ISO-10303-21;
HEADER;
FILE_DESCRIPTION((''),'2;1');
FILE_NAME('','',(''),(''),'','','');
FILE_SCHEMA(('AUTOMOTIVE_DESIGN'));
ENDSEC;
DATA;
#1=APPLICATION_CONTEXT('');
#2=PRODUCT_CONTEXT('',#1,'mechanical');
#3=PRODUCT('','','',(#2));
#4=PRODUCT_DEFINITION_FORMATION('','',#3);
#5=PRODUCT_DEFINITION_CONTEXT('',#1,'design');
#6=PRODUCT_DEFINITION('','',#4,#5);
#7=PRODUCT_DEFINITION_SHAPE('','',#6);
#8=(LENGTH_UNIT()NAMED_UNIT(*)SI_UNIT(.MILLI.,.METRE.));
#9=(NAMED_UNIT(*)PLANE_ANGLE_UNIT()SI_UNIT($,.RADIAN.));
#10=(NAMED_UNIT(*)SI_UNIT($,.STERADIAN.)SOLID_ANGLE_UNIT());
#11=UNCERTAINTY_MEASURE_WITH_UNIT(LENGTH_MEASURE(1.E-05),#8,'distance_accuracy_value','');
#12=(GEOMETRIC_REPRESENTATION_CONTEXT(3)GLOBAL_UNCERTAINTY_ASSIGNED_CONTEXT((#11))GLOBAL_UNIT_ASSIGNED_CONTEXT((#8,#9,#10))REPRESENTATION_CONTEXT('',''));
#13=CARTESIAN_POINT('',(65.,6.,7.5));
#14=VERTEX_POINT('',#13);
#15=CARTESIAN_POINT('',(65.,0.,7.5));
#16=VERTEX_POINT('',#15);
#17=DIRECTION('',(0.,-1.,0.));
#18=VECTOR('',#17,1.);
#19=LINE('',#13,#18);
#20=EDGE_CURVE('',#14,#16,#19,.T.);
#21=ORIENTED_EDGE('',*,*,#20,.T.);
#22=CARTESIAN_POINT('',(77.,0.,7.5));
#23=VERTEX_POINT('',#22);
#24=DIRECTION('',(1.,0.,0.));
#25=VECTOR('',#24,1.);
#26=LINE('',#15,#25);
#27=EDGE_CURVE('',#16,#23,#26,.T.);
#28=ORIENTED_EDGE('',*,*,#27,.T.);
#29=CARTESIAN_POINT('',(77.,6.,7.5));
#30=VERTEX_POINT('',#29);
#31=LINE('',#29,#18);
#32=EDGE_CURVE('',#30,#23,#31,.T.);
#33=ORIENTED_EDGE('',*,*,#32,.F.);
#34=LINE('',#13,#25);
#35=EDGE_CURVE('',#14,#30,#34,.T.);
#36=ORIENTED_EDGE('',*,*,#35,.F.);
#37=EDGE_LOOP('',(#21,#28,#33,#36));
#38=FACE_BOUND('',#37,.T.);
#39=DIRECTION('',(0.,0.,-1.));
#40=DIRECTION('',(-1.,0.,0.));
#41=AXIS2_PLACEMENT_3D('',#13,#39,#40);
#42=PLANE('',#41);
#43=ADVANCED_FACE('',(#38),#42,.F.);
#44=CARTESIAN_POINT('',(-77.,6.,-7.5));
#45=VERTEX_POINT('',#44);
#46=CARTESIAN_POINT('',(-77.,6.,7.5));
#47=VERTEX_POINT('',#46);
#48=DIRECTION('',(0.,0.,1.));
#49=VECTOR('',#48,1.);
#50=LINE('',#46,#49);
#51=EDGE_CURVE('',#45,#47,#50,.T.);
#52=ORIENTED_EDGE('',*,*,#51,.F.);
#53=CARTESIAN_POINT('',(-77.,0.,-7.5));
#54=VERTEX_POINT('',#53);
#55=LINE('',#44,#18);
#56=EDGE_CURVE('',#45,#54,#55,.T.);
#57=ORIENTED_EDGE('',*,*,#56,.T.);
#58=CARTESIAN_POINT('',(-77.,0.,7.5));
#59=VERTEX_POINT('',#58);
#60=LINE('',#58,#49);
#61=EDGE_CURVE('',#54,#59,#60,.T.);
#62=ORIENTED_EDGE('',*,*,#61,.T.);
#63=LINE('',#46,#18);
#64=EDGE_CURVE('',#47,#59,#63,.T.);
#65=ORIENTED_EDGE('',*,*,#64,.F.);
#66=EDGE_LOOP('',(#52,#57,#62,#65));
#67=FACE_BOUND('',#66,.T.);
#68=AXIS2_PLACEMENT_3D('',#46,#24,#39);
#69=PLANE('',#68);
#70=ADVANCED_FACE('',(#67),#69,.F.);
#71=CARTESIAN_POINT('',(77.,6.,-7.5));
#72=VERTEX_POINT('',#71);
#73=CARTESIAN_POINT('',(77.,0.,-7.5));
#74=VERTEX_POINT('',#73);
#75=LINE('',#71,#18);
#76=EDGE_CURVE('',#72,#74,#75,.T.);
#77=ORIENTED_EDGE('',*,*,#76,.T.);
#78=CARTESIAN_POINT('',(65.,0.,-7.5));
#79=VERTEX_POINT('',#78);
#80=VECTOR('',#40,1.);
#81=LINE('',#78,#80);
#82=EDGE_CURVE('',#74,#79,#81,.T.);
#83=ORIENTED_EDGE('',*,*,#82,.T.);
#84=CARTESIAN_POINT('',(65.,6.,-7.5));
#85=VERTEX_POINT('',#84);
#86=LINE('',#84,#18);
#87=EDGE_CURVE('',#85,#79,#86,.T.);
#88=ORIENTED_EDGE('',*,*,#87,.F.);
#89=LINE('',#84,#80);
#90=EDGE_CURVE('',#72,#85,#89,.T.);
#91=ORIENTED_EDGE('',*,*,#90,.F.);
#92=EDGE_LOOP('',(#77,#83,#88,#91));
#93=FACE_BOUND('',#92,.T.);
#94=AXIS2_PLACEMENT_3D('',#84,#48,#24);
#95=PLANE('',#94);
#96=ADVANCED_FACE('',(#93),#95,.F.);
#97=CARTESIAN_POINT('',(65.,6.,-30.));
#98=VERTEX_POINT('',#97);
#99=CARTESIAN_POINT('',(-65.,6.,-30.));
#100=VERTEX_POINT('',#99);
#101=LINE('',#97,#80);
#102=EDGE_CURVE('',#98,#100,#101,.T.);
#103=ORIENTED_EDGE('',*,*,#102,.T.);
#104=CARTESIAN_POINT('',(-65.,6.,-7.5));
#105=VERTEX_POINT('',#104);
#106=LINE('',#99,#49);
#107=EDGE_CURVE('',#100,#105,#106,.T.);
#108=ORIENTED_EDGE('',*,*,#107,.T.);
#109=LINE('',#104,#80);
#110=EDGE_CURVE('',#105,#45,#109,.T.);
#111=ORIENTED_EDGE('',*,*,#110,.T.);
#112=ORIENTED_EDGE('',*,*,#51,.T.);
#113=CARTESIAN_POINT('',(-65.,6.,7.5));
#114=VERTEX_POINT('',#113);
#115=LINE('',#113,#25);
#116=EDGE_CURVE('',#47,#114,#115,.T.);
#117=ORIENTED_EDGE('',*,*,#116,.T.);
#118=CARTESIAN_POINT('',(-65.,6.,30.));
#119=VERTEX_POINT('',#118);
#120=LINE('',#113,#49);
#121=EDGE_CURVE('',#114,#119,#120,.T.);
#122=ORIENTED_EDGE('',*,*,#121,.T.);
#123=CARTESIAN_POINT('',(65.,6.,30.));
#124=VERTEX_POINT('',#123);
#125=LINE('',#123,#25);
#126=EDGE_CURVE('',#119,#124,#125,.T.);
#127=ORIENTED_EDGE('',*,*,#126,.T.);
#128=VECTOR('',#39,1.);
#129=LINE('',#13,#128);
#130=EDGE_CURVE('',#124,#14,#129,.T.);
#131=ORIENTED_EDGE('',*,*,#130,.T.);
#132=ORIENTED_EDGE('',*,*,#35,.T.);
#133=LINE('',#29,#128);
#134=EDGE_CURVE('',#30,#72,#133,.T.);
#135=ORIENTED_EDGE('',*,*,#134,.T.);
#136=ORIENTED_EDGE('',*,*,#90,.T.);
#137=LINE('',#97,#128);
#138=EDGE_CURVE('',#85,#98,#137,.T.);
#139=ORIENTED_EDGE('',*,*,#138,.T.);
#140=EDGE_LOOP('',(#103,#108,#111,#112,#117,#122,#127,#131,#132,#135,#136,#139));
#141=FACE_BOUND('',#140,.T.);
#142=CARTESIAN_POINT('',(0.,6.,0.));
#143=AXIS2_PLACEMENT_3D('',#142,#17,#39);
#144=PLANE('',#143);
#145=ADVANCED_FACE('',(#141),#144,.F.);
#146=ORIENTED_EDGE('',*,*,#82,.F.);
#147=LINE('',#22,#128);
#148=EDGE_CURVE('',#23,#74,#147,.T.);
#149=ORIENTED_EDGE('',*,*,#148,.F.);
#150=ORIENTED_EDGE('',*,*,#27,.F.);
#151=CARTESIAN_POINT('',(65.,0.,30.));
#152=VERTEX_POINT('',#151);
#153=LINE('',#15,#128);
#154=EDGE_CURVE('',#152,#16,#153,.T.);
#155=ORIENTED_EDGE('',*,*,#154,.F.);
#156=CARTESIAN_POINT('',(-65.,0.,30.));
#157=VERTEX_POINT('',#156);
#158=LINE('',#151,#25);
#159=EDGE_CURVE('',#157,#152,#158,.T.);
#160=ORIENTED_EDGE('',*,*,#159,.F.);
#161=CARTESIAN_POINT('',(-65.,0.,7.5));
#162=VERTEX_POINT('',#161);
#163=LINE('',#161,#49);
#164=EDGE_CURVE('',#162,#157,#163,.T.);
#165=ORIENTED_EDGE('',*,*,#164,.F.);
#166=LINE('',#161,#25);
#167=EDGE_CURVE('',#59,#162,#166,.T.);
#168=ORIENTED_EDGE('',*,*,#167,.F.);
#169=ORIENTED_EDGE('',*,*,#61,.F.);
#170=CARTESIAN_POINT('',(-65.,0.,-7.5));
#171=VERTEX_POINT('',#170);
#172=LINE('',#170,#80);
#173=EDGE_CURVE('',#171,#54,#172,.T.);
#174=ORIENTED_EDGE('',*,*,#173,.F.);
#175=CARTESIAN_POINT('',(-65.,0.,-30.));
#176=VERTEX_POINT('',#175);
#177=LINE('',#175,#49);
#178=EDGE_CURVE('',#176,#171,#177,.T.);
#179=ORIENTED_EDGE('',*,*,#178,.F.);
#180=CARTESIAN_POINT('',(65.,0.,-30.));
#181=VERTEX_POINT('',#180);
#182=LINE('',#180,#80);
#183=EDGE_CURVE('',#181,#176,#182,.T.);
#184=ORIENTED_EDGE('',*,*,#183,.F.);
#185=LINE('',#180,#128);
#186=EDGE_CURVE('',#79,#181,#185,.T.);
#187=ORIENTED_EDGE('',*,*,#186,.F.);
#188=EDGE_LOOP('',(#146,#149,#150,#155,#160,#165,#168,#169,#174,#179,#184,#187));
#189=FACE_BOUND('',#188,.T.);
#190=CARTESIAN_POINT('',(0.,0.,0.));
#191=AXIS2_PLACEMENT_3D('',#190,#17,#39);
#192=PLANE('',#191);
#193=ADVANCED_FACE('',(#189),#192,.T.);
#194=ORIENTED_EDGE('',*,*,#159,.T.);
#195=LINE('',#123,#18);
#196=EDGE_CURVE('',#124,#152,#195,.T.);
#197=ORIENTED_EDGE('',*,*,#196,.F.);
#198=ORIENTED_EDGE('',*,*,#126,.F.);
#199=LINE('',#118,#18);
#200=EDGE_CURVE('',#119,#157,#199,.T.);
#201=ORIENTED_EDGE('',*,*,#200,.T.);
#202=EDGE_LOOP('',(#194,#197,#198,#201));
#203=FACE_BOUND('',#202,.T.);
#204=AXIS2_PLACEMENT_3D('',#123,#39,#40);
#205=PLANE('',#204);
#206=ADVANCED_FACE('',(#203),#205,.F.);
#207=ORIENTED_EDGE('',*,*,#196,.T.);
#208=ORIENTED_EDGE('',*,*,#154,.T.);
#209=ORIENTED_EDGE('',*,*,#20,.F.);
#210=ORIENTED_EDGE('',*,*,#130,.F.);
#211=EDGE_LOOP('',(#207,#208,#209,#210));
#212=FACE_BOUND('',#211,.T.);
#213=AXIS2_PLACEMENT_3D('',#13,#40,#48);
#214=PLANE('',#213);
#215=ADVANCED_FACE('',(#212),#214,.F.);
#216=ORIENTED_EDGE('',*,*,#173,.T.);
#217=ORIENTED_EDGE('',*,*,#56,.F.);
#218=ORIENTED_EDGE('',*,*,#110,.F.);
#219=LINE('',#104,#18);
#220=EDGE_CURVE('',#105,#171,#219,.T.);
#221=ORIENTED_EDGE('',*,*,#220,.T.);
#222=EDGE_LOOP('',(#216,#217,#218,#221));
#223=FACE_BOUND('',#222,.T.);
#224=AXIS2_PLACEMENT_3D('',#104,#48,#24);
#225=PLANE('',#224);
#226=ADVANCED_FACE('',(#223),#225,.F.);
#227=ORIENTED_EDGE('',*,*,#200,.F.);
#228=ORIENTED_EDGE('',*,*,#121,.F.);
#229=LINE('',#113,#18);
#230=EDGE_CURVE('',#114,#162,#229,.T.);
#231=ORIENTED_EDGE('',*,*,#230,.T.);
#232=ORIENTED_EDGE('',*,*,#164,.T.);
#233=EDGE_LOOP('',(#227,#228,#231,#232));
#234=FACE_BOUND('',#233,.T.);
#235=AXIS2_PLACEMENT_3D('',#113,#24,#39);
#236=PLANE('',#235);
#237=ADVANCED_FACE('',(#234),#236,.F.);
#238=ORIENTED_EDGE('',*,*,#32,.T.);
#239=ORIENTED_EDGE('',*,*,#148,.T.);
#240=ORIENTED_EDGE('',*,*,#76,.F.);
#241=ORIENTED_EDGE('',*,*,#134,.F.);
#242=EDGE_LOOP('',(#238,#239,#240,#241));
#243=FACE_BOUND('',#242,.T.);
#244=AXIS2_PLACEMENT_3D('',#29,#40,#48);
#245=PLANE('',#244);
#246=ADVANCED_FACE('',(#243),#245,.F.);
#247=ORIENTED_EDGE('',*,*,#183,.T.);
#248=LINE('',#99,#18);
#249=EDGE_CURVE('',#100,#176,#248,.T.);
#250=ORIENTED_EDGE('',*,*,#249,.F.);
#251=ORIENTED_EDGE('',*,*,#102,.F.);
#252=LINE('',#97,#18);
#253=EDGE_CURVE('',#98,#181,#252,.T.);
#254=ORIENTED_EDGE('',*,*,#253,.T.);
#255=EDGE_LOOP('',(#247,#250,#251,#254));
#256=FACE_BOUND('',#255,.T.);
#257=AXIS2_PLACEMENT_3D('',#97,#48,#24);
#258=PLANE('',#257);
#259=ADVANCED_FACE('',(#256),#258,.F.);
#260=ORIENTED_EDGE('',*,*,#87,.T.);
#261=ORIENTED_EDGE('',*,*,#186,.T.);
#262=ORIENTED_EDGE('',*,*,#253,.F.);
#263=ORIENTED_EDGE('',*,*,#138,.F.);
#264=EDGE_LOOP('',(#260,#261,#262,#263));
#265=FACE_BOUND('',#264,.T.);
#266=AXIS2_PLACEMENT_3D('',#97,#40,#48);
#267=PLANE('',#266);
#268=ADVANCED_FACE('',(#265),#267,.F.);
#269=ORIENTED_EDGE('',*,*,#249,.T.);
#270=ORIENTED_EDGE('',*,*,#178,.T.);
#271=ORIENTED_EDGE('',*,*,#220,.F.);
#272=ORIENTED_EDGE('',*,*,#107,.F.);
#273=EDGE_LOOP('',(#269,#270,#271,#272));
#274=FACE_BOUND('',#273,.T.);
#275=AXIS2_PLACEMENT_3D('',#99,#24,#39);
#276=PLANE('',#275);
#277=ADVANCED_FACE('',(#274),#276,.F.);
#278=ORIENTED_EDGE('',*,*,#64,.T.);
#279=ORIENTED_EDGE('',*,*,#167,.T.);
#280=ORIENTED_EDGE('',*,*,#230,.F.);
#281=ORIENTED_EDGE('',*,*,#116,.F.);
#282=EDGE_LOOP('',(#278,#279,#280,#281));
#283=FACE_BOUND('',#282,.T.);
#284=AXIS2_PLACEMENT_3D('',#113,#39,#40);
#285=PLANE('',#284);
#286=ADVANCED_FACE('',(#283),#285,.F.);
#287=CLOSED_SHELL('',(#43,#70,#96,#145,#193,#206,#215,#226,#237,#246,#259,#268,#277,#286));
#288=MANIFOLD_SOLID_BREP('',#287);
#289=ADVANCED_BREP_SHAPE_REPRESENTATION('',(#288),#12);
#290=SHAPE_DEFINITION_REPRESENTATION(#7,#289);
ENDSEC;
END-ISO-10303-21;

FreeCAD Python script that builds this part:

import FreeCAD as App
import Part
import Sketcher
Q = App.Units.Quantity

doc = App.newDocument("Part")
body = doc.addObject("PartDesign::Body", "Body")

# Sketch on XZ plane
sketch1 = doc.addObject("Sketcher::SketchObject", "Sketch")
body.addObject(sketch1)
sketch1.AttachmentSupport = (doc.XZ_Plane, [""])
sketch1.MapMode = "FlatFace"
sketch1.addGeometry(Part.LineSegment(App.Vector(65, -30, 0), App.Vector(-65, -30, 0)), False)
sketch1.addGeometry(Part.LineSegment(App.Vector(-65, -30, 0), App.Vector(-65, -7.5, 0)), False)
sketch1.addGeometry(Part.LineSegment(App.Vector(-65, -7.5, 0), App.Vector(-77, -7.5, 0)), False)
sketch1.addGeometry(Part.LineSegment(App.Vector(-77, -7.5, 0), App.Vector(-77, 7.5, 0)), False)
sketch1.addGeometry(Part.LineSegment(App.Vector(-77, 7.5, 0), App.Vector(-65, 7.5, 0)), False)
sketch1.addGeometry(Part.LineSegment(App.Vector(-65, 7.5, 0), App.Vector(-65, 30, 0)), False)
sketch1.addGeometry(Part.LineSegment(App.Vector(-65, 30, 0), App.Vector(65, 30, 0)), False)
sketch1.addGeometry(Part.LineSegment(App.Vector(65, 30, 0), App.Vector(65, 7.5, 0)), False)
sketch1.addGeometry(Part.LineSegment(App.Vector(65, 7.5, 0), App.Vector(77, 7.5, 0)), False)
sketch1.addGeometry(Part.LineSegment(App.Vector(77, 7.5, 0), App.Vector(77, -7.5, 0)), False)
sketch1.addGeometry(Part.LineSegment(App.Vector(77, -7.5, 0), App.Vector(65, -7.5, 0)), False)
sketch1.addGeometry(Part.LineSegment(App.Vector(65, -7.5, 0), App.Vector(65, -30, 0)), False)
sketch1.addConstraint(Sketcher.Constraint("Coincident", 0, 2, 1, 1))
sketch1.addConstraint(Sketcher.Constraint("Coincident", 1, 2, 2, 1))
sketch1.addConstraint(Sketcher.Constraint("Coincident", 2, 2, 3, 1))
sketch1.addConstraint(Sketcher.Constraint("Coincident", 3, 2, 4, 1))
sketch1.addConstraint(Sketcher.Constraint("Coincident", 4, 2, 5, 1))
sketch1.addConstraint(Sketcher.Constraint("Coincident", 5, 2, 6, 1))
sketch1.addConstraint(Sketcher.Constraint("Coincident", 6, 2, 7, 1))
sketch1.addConstraint(Sketcher.Constraint("Coincident", 7, 2, 8, 1))
sketch1.addConstraint(Sketcher.Constraint("Coincident", 8, 2, 9, 1))
sketch1.addConstraint(Sketcher.Constraint("Coincident", 9, 2, 10, 1))
sketch1.addConstraint(Sketcher.Constraint("Coincident", 10, 2, 11, 1))
sketch1.addConstraint(Sketcher.Constraint("Coincident", 11, 2, 0, 1))
sketch1.addConstraint(Sketcher.Constraint("Horizontal", 0))
sketch1.addConstraint(Sketcher.Constraint("Vertical", 1))
sketch1.addConstraint(Sketcher.Constraint("Horizontal", 2))
sketch1.addConstraint(Sketcher.Constraint("Vertical", 3))
sketch1.addConstraint(Sketcher.Constraint("Horizontal", 4))
sketch1.addConstraint(Sketcher.Constraint("Vertical", 5))
sketch1.addConstraint(Sketcher.Constraint("Horizontal", 6))
sketch1.addConstraint(Sketcher.Constraint("Vertical", 7))
sketch1.addConstraint(Sketcher.Constraint("Horizontal", 8))
sketch1.addConstraint(Sketcher.Constraint("Vertical", 9))
sketch1.addConstraint(Sketcher.Constraint("Horizontal", 10))
sketch1.addConstraint(Sketcher.Constraint("Vertical", 11))
sketch1.addConstraint(Sketcher.Constraint("Symmetric", 0, 2, 6, 2, -1, 1))
sketch1.addConstraint(Sketcher.Constraint("Symmetric", 2, 2, 8, 2, -1, 1))
sketch1.addConstraint(Sketcher.Constraint("Symmetric", 4, 2, 10, 2, -1, 1))
sketch1.addConstraint(Sketcher.Constraint("Symmetric", 4, 2, 7, 2, -2))
sketch1.addConstraint(Sketcher.Constraint("DistanceX", 0, 2, 0, 1, Q("130 mm")))
sketch1.addConstraint(Sketcher.Constraint("DistanceX", 2, 2, 2, 1, Q("12 mm")))
sketch1.addConstraint(Sketcher.Constraint("DistanceY", 3, 1, 3, 2, Q("15 mm")))
sketch1.addConstraint(Sketcher.Constraint("DistanceY", 1, 1, 1, 2, Q("22.5 mm")))
pad1 = doc.addObject("PartDesign::Pad", "Pad")
body.addObject(pad1)
pad1.Profile = sketch1
pad1.Length = 6
pad1.Reversed = True

doc.recompute()
